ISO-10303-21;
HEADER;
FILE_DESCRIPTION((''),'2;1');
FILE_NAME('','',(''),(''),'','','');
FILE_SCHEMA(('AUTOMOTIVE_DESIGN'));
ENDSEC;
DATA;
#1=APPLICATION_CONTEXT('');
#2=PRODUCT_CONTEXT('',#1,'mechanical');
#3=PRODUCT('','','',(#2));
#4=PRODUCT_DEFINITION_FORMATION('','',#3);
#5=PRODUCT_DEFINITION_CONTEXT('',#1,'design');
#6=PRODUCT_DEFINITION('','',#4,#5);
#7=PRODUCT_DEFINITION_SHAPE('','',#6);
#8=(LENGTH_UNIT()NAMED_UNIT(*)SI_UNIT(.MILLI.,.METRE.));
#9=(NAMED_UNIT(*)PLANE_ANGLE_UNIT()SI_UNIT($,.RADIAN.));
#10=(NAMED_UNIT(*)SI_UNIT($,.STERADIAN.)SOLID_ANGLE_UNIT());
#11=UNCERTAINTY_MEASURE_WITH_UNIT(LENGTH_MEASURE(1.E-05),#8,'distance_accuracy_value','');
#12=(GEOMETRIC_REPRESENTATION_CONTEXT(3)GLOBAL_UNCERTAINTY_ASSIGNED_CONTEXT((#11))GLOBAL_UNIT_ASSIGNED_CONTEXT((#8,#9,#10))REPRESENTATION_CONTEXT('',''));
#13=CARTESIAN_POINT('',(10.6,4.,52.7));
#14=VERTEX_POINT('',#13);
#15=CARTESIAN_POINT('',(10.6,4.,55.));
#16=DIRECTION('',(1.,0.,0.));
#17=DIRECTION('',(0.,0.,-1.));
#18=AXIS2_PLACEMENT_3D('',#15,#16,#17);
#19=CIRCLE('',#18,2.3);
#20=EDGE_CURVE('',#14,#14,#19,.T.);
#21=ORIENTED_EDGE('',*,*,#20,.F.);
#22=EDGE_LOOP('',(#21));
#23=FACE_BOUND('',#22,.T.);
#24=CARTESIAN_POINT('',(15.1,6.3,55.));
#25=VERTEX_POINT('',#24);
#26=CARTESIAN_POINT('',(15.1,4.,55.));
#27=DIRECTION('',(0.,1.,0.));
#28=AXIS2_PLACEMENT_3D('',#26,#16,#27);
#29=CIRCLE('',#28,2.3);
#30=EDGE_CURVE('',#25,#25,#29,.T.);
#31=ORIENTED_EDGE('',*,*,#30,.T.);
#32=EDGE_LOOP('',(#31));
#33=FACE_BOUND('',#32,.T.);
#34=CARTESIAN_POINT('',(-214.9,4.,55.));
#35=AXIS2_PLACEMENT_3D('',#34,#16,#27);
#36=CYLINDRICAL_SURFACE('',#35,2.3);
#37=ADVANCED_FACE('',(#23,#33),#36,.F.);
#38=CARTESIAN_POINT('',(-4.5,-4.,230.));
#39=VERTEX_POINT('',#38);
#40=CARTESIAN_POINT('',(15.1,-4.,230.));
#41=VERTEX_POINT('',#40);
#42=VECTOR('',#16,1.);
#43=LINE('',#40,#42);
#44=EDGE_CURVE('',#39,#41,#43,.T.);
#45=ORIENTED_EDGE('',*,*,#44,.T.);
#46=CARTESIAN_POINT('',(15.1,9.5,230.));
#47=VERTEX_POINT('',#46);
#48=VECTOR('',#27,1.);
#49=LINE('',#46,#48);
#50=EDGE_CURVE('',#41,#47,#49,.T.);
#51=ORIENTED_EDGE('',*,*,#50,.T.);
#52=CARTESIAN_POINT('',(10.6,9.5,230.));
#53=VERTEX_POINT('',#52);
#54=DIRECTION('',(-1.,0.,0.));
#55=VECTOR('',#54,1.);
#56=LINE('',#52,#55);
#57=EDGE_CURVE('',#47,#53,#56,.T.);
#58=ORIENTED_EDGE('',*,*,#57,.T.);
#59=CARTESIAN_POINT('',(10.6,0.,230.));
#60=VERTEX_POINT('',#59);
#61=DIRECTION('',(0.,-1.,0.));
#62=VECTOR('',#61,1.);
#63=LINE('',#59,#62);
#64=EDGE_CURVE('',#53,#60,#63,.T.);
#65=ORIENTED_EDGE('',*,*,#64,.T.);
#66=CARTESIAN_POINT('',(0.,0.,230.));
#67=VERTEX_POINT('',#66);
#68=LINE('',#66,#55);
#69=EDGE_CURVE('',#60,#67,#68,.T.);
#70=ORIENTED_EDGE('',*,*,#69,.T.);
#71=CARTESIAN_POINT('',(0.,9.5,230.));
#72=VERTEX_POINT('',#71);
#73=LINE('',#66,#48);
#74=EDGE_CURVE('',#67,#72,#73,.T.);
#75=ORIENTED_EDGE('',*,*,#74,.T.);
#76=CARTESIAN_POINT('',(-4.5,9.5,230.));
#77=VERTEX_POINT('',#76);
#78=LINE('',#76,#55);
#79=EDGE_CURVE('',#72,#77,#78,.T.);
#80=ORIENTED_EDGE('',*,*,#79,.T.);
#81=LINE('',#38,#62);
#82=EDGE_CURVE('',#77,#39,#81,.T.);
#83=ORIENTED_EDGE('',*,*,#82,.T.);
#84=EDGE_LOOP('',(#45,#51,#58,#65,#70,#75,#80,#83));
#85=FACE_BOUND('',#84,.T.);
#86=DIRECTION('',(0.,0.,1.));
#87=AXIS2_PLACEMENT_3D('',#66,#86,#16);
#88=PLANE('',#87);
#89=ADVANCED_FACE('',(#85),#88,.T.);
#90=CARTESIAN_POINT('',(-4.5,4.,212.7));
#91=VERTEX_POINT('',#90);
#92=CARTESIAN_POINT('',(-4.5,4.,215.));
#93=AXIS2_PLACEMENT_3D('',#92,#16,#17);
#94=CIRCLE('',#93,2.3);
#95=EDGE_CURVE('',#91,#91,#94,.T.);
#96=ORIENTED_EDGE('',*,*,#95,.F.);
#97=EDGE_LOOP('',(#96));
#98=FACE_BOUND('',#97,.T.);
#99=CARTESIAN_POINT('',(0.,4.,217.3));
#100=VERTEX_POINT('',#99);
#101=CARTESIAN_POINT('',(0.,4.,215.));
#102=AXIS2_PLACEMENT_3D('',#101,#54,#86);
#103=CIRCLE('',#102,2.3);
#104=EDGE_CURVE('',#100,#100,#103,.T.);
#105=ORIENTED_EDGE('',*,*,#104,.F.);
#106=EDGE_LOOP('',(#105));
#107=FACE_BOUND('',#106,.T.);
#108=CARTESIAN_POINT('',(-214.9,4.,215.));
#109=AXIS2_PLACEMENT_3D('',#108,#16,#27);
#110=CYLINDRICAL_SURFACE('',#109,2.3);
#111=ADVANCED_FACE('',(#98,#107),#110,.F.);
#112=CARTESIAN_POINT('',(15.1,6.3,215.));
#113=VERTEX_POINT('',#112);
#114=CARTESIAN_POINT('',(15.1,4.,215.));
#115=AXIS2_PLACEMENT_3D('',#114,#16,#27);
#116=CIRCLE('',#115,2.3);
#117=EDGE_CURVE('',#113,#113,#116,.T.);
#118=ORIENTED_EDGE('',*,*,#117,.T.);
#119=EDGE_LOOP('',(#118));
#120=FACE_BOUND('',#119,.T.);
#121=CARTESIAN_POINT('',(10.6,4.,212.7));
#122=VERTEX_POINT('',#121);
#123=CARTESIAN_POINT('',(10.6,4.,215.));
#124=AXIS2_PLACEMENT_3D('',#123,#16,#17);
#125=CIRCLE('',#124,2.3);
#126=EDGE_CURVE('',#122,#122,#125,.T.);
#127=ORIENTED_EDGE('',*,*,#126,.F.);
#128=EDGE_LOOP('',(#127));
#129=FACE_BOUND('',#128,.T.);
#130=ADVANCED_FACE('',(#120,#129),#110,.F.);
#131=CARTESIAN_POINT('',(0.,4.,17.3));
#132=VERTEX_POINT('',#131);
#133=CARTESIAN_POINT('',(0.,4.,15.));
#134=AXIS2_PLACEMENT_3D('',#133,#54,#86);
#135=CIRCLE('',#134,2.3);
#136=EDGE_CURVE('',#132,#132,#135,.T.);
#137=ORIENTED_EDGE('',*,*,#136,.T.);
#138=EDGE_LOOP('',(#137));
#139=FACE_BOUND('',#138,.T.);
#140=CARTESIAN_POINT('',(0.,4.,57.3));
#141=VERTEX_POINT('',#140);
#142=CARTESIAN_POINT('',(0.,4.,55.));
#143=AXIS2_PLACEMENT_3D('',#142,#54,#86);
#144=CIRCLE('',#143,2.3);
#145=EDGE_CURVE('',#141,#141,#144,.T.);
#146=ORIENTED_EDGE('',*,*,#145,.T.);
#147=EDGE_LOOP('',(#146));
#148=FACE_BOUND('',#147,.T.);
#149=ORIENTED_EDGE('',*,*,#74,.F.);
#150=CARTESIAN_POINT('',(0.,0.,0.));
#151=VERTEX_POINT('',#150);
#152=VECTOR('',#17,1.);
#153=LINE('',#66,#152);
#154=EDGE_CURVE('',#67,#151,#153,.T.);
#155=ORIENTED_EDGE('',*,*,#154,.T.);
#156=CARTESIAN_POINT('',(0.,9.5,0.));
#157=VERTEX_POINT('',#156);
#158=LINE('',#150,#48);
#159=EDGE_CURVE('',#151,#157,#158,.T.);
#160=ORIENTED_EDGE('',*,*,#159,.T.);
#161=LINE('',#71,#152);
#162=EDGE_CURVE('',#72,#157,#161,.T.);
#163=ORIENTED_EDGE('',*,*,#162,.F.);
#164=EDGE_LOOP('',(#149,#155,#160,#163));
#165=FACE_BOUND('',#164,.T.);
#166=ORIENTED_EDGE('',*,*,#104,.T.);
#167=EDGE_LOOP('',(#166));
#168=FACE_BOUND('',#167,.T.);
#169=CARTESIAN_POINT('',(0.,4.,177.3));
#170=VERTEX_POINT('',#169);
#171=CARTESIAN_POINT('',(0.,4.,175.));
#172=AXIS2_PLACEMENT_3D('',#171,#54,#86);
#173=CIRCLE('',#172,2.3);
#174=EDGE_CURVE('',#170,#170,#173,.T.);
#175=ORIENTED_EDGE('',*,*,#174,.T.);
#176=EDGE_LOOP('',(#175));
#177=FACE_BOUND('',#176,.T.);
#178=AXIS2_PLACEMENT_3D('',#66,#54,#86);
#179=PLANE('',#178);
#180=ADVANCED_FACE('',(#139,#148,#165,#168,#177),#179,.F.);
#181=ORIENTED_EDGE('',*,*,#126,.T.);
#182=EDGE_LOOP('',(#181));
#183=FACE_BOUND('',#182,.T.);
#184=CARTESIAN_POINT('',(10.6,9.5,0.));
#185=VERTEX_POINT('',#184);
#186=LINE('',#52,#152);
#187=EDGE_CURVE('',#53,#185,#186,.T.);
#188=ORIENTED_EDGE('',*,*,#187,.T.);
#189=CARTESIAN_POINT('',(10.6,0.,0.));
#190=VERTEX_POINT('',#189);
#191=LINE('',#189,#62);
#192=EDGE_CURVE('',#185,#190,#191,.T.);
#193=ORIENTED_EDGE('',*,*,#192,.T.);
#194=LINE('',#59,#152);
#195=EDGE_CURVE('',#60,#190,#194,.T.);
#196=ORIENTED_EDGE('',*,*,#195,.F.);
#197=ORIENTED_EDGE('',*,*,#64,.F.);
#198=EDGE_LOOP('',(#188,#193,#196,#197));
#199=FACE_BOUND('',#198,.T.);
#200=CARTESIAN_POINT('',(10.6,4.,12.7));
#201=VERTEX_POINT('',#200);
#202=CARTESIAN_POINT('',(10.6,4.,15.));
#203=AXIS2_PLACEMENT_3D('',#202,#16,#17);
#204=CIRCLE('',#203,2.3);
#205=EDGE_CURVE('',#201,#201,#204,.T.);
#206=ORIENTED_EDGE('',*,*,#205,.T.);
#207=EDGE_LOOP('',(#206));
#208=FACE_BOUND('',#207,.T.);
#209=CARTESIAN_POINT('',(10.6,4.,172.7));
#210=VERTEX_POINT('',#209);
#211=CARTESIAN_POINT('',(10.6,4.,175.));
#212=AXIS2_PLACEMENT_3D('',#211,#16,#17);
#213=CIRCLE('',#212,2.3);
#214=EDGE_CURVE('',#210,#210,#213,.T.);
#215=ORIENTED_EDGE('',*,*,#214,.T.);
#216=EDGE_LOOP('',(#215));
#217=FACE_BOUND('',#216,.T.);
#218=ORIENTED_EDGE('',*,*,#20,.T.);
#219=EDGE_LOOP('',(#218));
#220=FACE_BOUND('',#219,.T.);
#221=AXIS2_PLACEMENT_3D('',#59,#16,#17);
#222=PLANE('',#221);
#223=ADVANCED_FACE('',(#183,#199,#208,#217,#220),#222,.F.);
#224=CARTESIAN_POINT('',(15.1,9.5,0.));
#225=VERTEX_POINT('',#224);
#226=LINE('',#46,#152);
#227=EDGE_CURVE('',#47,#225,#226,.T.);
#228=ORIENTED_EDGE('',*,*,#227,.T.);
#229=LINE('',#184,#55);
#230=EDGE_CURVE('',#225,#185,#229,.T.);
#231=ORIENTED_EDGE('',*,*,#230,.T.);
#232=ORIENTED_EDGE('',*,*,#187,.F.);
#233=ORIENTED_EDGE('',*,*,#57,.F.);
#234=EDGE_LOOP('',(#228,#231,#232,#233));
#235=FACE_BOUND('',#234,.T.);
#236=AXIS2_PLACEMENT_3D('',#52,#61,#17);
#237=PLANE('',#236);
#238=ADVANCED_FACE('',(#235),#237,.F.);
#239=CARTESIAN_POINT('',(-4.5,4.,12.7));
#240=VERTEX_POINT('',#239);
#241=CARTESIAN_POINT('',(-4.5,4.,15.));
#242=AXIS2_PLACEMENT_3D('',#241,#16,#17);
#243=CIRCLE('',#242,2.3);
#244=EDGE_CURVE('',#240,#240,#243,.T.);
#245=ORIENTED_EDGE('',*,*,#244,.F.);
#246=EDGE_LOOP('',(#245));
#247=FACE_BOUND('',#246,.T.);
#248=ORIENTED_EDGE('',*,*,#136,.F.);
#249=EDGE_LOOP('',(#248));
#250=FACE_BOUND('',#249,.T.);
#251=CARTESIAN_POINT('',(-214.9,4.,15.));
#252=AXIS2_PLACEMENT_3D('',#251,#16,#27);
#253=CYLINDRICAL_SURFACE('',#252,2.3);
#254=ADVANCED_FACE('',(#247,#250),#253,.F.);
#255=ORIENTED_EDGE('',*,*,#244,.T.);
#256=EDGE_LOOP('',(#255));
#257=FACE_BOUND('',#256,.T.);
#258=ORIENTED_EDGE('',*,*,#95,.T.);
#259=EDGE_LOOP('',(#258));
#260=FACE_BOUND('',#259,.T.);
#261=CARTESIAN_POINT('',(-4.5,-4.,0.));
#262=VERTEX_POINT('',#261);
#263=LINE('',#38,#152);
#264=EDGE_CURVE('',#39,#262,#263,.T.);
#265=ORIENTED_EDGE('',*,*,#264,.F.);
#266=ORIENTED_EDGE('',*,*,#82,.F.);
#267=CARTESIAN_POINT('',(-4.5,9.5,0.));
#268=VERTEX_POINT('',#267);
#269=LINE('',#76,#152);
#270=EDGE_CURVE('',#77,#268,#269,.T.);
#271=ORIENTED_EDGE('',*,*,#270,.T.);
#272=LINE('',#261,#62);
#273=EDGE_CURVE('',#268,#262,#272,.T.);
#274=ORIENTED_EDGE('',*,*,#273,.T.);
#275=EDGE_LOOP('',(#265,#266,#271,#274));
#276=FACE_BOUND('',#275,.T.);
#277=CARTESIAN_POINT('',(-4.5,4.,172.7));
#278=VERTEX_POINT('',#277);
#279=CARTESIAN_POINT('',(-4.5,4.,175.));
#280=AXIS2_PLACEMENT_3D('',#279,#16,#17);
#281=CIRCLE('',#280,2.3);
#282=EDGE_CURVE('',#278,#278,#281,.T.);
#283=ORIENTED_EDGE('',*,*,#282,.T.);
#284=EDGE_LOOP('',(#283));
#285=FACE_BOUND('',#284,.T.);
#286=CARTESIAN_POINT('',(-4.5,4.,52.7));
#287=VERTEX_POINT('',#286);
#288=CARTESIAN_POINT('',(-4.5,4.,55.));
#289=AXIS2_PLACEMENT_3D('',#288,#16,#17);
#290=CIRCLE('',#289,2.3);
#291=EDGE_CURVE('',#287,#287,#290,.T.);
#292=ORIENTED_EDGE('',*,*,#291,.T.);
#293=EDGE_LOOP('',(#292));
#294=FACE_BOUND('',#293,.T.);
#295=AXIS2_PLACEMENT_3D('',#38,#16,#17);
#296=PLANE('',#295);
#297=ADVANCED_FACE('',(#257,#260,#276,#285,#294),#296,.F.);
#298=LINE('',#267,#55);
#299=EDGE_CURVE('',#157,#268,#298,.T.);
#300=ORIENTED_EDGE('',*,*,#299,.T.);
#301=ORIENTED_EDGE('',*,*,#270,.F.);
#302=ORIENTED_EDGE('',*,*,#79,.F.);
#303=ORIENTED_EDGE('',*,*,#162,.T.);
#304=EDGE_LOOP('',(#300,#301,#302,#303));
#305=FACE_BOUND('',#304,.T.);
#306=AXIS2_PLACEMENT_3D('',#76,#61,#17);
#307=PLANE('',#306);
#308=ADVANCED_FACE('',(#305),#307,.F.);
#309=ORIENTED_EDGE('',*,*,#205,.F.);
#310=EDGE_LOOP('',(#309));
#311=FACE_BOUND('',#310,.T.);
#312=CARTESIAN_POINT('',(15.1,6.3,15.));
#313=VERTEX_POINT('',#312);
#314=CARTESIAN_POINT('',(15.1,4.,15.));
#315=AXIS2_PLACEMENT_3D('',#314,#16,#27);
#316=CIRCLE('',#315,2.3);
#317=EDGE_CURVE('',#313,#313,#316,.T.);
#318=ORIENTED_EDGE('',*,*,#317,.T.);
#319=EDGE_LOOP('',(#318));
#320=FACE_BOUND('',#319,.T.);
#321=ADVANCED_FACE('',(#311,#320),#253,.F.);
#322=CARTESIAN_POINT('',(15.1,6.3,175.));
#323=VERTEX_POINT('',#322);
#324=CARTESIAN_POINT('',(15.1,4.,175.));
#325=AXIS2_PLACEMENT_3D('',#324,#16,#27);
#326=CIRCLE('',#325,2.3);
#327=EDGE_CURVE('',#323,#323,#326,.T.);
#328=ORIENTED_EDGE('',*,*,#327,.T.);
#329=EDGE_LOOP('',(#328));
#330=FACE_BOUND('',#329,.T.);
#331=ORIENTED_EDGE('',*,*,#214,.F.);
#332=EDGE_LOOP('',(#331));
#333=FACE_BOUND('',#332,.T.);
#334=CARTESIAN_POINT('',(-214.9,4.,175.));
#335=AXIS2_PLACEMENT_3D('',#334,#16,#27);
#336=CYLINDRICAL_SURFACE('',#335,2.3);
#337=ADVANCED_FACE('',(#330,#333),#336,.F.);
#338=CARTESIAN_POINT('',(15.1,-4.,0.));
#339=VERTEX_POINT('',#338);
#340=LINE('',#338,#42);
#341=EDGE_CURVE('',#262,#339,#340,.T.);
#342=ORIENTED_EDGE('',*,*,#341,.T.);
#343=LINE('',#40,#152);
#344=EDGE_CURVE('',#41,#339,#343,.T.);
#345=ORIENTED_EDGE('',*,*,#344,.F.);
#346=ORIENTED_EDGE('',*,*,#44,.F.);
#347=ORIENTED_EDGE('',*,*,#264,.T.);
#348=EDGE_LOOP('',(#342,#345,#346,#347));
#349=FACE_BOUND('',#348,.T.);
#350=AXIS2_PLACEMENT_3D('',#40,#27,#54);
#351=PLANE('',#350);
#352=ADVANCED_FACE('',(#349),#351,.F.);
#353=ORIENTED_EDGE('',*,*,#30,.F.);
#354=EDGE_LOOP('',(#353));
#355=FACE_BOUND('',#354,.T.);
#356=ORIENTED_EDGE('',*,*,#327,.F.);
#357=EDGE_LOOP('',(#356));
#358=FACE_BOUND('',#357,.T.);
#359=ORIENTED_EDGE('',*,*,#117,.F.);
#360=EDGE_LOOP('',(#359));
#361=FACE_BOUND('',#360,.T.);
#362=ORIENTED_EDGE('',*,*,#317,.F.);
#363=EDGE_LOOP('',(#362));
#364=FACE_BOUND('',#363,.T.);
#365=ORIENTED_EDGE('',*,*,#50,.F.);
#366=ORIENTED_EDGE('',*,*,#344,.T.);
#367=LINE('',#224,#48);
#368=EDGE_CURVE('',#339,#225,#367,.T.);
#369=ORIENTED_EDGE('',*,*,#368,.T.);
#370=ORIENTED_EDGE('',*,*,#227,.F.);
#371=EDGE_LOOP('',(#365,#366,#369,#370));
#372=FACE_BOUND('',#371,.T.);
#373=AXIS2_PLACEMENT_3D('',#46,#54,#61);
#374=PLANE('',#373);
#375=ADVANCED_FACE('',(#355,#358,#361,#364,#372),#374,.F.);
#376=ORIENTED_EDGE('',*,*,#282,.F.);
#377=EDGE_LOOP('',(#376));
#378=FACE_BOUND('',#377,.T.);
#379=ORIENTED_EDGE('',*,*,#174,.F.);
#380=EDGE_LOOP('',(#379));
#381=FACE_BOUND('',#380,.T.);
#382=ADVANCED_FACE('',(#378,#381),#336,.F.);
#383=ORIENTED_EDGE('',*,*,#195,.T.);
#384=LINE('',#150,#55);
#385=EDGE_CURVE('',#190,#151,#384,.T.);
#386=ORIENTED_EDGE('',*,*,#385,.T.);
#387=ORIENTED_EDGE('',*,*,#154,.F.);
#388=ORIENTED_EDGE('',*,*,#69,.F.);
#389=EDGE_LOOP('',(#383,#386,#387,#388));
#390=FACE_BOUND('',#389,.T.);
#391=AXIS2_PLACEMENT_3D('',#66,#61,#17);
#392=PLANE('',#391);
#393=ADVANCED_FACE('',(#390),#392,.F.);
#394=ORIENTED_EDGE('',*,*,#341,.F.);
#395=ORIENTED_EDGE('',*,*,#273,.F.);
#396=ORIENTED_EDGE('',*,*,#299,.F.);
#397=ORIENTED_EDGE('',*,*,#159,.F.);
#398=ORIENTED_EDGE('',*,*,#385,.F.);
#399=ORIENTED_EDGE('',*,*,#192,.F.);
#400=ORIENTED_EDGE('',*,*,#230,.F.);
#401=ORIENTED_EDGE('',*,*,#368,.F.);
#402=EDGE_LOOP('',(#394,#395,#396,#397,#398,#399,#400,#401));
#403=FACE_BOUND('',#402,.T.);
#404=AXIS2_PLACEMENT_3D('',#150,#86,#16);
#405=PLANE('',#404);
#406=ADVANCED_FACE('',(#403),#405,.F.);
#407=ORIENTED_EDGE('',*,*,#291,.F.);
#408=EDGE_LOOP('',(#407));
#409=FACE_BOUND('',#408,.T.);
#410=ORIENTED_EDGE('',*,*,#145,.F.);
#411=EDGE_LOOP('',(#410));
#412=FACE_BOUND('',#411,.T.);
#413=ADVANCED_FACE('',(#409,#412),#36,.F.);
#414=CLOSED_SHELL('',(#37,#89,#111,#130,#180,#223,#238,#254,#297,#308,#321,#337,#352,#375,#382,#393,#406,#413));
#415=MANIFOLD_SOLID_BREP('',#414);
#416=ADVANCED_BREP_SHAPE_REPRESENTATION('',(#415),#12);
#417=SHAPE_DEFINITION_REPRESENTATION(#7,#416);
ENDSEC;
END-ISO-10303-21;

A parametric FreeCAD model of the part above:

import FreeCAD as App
import Part
import Sketcher


def add_polygon(sketch, points):
    """Adds a closed chain of lines whose ends are joined by coincident constraints."""
    first, n = sketch.GeometryCount, len(points)
    for a, b in zip(points, points[1:] + points[:1]):
        sketch.addGeometry(Part.LineSegment(App.Vector(*a, 0), App.Vector(*b, 0)), False)
    for i in range(n):
        sketch.addConstraint(Sketcher.Constraint("Coincident", first + i, 2, first + (i + 1) % n, 1))

doc = App.newDocument("Part")
body = doc.addObject("PartDesign::Body", "Body")

# Sketch on XY plane
sketch1 = doc.addObject("Sketcher::SketchObject", "Sketch")
body.addObject(sketch1)
sketch1.AttachmentSupport = (doc.XY_Plane, [""])
sketch1.MapMode = "FlatFace"
add_polygon(sketch1, [(0, 0), (0, 9.5), (-4.5, 9.5), (-4.5, -4), (15.1, -4), (15.1, 9.5), (10.6, 9.5), (10.6, 0)])  # lines 0-7
sketch1.addConstraint([
    Sketcher.Constraint("Vertical", 0),
    Sketcher.Constraint("Horizontal", 1),
    Sketcher.Constraint("Vertical", 2),
    Sketcher.Constraint("Horizontal", 3),
    Sketcher.Constraint("Vertical", 4),
    Sketcher.Constraint("Horizontal", 5),
    Sketcher.Constraint("Vertical", 6),
    Sketcher.Constraint("Horizontal", 7),
    Sketcher.Constraint("Coincident", 7, 2, -1, 1),
    Sketcher.Constraint("Horizontal", 1, 2, 4, 2),
    Sketcher.Constraint("Equal", 1, 5),
    Sketcher.Constraint("DistanceX", 1, 2, 1, 1, 4.5),
    Sketcher.Constraint("DistanceX", 3, 1, 3, 2, 19.6),
    Sketcher.Constraint("DistanceY", 0, 1, 0, 2, 9.5),
    Sketcher.Constraint("DistanceY", 2, 2, 2, 1, 13.5),
])
pad1 = doc.addObject("PartDesign::Pad", "Pad")
body.addObject(pad1)
pad1.Profile = sketch1
pad1.Length = 230

# Sketch on YZ plane
sketch2 = doc.addObject("Sketcher::SketchObject", "Sketch001")
body.addObject(sketch2)
sketch2.AttachmentSupport = (doc.YZ_Plane, [""])
sketch2.MapMode = "FlatFace"
sketch2.AttachmentOffset = App.Placement(App.Vector(0, 0, 15.1), App.Rotation())
sketch2.addGeometry([
    Part.Circle(App.Vector(4, 215, 0), App.Vector(0, 0, 1), 2.3),
    Part.Circle(App.Vector(4, 175, 0), App.Vector(0, 0, 1), 2.3),
    Part.Circle(App.Vector(4, 55, 0), App.Vector(0, 0, 1), 2.3),
    Part.Circle(App.Vector(4, 15, 0), App.Vector(0, 0, 1), 2.3),
], False)
sketch2.addConstraint([
    Sketcher.Constraint("Equal", 0, 1),
    Sketcher.Constraint("Equal", 1, 2),
    Sketcher.Constraint("Equal", 2, 3),
    Sketcher.Constraint("Vertical", 0, 3, 1, 3),
    Sketcher.Constraint("Vertical", 1, 3, 2, 3),
    Sketcher.Constraint("Vertical", 2, 3, 3, 3),
    Sketcher.Constraint("Diameter", 0, 4.6),
    Sketcher.Constraint("DistanceX", -1, 1, 0, 3, 4.0),
    Sketcher.Constraint("DistanceY", -1, 1, 0, 3, 215.0),
    Sketcher.Constraint("DistanceY", -1, 1, 1, 3, 175.0),
    Sketcher.Constraint("DistanceY", -1, 1, 2, 3, 55.0),
    Sketcher.Constraint("DistanceY", -1, 1, 3, 3, 15.0),
])
pocket1 = doc.addObject("PartDesign::Pocket", "Pocket")
body.addObject(pocket1)
pocket1.Profile = sketch2
pocket1.Length = 230

doc.recompute()
